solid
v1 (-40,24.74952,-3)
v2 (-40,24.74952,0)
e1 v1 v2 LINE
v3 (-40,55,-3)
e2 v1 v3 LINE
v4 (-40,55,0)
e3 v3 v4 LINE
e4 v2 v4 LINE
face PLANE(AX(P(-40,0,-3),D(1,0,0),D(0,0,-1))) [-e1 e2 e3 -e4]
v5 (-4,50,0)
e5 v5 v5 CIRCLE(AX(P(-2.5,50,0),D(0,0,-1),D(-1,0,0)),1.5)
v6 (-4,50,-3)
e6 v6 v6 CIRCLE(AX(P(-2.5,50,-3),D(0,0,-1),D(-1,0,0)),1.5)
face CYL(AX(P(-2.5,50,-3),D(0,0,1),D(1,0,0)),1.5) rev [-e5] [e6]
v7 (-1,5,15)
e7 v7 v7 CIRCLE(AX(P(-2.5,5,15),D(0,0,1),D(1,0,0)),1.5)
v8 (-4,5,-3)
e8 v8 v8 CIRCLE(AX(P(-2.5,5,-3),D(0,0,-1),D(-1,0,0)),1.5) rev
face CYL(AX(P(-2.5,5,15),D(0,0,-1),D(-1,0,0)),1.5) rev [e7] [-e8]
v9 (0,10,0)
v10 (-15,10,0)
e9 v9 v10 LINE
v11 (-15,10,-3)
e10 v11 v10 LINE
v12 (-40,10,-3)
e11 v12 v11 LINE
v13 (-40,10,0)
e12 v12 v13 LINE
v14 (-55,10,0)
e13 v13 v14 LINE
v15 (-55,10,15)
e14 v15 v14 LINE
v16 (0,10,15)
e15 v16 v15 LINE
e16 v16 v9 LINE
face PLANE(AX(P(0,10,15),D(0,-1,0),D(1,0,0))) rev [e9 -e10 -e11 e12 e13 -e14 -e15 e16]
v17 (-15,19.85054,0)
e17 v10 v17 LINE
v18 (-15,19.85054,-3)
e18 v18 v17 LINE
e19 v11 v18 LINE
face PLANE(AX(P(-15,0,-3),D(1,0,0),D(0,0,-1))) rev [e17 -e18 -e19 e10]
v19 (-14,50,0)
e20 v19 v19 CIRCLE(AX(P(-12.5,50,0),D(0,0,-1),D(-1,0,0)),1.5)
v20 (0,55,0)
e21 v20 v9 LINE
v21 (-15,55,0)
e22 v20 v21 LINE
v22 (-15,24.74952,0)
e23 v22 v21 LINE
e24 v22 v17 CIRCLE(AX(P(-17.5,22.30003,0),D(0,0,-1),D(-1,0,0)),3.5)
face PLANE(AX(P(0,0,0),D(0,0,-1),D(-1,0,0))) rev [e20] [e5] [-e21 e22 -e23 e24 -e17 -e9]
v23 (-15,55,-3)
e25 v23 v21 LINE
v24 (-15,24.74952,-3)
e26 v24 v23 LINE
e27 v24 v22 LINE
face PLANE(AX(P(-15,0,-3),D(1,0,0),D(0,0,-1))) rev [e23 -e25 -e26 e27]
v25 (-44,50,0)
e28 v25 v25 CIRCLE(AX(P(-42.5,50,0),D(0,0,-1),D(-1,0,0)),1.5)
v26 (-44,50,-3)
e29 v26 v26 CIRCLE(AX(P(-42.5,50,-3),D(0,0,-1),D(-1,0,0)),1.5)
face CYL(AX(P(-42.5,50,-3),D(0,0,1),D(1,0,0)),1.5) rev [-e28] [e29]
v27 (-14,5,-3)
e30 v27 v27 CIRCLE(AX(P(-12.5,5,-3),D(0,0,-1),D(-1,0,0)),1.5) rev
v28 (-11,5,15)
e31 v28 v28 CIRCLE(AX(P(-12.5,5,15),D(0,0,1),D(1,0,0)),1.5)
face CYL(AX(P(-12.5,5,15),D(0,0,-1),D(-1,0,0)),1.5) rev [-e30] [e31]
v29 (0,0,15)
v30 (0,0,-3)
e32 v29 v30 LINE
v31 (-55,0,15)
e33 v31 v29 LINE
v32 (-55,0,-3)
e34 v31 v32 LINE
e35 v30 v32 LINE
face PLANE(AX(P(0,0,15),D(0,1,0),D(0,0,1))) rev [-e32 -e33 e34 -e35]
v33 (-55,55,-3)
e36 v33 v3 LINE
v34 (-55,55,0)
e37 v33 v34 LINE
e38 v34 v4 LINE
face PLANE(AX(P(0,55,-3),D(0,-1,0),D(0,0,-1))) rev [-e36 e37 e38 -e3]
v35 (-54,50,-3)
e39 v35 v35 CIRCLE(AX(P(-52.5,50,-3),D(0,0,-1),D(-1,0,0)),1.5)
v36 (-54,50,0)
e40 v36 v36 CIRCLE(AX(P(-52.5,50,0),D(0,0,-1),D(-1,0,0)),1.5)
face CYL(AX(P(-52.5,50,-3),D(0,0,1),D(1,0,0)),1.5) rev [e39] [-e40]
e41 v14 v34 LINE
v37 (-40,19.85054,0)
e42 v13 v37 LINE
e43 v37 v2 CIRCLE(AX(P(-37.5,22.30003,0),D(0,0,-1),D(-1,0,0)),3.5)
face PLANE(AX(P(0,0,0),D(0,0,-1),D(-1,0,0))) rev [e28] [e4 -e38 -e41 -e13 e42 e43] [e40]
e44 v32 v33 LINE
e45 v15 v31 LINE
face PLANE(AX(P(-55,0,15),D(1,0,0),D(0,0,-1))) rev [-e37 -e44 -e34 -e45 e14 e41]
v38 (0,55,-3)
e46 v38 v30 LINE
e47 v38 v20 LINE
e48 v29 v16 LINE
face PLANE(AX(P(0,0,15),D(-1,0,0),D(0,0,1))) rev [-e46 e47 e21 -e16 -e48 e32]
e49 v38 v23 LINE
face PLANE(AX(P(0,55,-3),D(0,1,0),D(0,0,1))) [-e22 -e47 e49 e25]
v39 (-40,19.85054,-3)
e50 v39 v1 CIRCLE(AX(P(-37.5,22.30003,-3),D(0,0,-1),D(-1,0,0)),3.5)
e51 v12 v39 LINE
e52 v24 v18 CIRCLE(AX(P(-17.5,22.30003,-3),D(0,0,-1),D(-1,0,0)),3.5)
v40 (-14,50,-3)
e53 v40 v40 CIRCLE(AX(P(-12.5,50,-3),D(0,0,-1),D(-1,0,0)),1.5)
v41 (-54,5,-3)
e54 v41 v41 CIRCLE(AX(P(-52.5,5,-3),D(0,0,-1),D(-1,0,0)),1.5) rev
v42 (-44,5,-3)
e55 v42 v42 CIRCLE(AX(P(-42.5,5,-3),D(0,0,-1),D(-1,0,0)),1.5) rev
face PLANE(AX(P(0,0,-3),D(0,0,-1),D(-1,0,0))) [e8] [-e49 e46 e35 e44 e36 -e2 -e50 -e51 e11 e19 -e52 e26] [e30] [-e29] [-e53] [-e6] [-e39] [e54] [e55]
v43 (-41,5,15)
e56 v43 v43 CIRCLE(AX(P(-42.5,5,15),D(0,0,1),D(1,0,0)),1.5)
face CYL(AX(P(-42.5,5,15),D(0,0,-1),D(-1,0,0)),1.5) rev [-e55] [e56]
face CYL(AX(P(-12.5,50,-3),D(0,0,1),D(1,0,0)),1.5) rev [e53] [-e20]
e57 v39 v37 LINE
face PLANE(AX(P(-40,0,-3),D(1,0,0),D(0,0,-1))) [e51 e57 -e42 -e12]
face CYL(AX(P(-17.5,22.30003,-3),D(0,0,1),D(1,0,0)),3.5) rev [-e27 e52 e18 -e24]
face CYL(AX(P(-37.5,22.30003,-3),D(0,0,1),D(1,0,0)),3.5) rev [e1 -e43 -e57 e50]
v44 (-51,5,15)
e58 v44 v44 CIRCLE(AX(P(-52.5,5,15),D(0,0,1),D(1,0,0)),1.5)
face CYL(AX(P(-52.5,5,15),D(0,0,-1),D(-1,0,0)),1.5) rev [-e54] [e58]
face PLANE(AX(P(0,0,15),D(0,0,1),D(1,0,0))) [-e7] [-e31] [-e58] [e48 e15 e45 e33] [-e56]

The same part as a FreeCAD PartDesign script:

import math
import FreeCAD as App
import Part
import Sketcher
from FreeCAD import Vector
Q = App.Units.Quantity

doc = App.newDocument("Part")
body = doc.addObject("PartDesign::Body", "Body")

# Sketch on XY plane
sketch1 = doc.addObject("Sketcher::SketchObject", "Sketch")
body.addObject(sketch1)
sketch1.AttachmentSupport = (doc.XY_Plane, [""])
sketch1.MapMode = "FlatFace"
sketch1.addGeometry([
    Part.LineSegment(Vector(-55, 10, 0), Vector(-55, 0, 0)),  # 0
    Part.LineSegment(Vector(-55, 0, 0), Vector(0, 0, 0)),  # 1
    Part.LineSegment(Vector(0, 0, 0), Vector(0, 10, 0)),  # 2
    Part.LineSegment(Vector(0, 10, 0), Vector(-55, 10, 0)),  # 3
    Part.Circle(Vector(-52.5, 5, 0), Vector(0, 0, 1), 1.5),  # 4
    Part.Circle(Vector(-42.5, 5, 0), Vector(0, 0, 1), 1.5),  # 5
    Part.Circle(Vector(-12.5, 5, 0), Vector(0, 0, 1), 1.5),  # 6
    Part.Circle(Vector(-2.5, 5, 0), Vector(0, 0, 1), 1.5),  # 7
], False)
sketch1.addConstraint([
    Sketcher.Constraint("Coincident", 0, 2, 1, 1),
    Sketcher.Constraint("Coincident", 1, 2, 2, 1),
    Sketcher.Constraint("Coincident", 2, 2, 3, 1),
    Sketcher.Constraint("Coincident", 3, 2, 0, 1),
    Sketcher.Constraint("Vertical", 0),
    Sketcher.Constraint("Horizontal", 1),
    Sketcher.Constraint("Vertical", 2),
    Sketcher.Constraint("Horizontal", 3),
    Sketcher.Constraint("Coincident", 1, 2, -1, 1),
    Sketcher.Constraint("Equal", 4, 5),
    Sketcher.Constraint("Equal", 5, 6),
    Sketcher.Constraint("Equal", 6, 7),
    Sketcher.Constraint("Horizontal", 4, 3, 5, 3),
    Sketcher.Constraint("Horizontal", 5, 3, 6, 3),
    Sketcher.Constraint("Horizontal", 6, 3, 7, 3),
    Sketcher.Constraint("Diameter", 4, Q("3 mm")),
    Sketcher.Constraint("DistanceX", 1, 1, 1, 2, Q("55 mm")),
    Sketcher.Constraint("DistanceY", 0, 2, 0, 1, Q("10 mm")),
    Sketcher.Constraint("DistanceY", -1, 1, 4, 3, Q("5 mm")),
    Sketcher.Constraint("DistanceX", 4, 3, 5, 3, Q("10 mm")),
    Sketcher.Constraint("DistanceX", 5, 3, 6, 3, Q("30 mm")),
    Sketcher.Constraint("DistanceX", 6, 3, 7, 3, Q("10 mm")),
    Sketcher.Constraint("DistanceX", 4, 3, -1, 1, Q("52.5 mm")),
])
pad1 = doc.addObject("PartDesign::Pad", "Pad")
body.addObject(pad1)
pad1.Profile = sketch1
pad1.Length = 15

# Sketch on XY plane
sketch2 = doc.addObject("Sketcher::SketchObject", "Sketch001")
body.addObject(sketch2)
sketch2.AttachmentSupport = (doc.XY_Plane, [""])
sketch2.MapMode = "FlatFace"
sketch2.AttachmentOffset = App.Placement(Vector(0, 0, -3), App.Rotation())
sketch2.addGeometry([
    Part.LineSegment(Vector(-55, 0, 0), Vector(-55, 55, 0)),  # 0
    Part.LineSegment(Vector(-55, 55, 0), Vector(-40, 55, 0)),  # 1
    Part.LineSegment(Vector(-40, 55, 0), Vector(-40, 24.7, 0)),  # 2
    Part.ArcOfCircle(Part.Circle(Vector(-37.5, 22.3, 0), Vector(0, 0, 1), 3.5), math.radians(136), math.radians(180)),  # 3
    Part.ArcOfCircle(Part.Circle(Vector(-37.5, 22.3, 0), Vector(0, 0, 1), 3.5), math.radians(180), math.radians(224)),  # 4
    Part.LineSegment(Vector(-40, 19.9, 0), Vector(-40, 10, 0)),  # 5
    Part.LineSegment(Vector(-40, 10, 0), Vector(-15, 10, 0)),  # 6
    Part.LineSegment(Vector(-15, 10, 0), Vector(-15, 19.9, 0)),  # 7
    Part.ArcOfCircle(Part.Circle(Vector(-17.5, 22.3, 0), Vector(0, 0, 1), 3.5), math.radians(-44), math.radians(44)),  # 8
    Part.LineSegment(Vector(-15, 24.7, 0), Vector(-15, 55, 0)),  # 9
    Part.LineSegment(Vector(-15, 55, 0), Vector(0, 55, 0)),  # 10
    Part.LineSegment(Vector(0, 55, 0), Vector(0, 0, 0)),  # 11
    Part.LineSegment(Vector(0, 0, 0), Vector(-55, 0, 0)),  # 12
    Part.Circle(Vector(-12.5, 5, 0), Vector(0, 0, 1), 1.5),  # 13
    Part.Circle(Vector(-2.5, 5, 0), Vector(0, 0, 1), 1.5),  # 14
    Part.Circle(Vector(-52.5, 5, 0), Vector(0, 0, 1), 1.5),  # 15
    Part.Circle(Vector(-42.5, 5, 0), Vector(0, 0, 1), 1.5),  # 16
    Part.Circle(Vector(-12.5, 50, 0), Vector(0, 0, 1), 1.5),  # 17
    Part.Circle(Vector(-2.5, 50, 0), Vector(0, 0, 1), 1.5),  # 18
    Part.Circle(Vector(-52.5, 50, 0), Vector(0, 0, 1), 1.5),  # 19
    Part.Circle(Vector(-42.5, 50, 0), Vector(0, 0, 1), 1.5),  # 20
], False)
sketch2.addConstraint([
    Sketcher.Constraint("Coincident", 0, 2, 1, 1),
    Sketcher.Constraint("Coincident", 1, 2, 2, 1),
    Sketcher.Constraint("Coincident", 2, 2, 3, 1),
    Sketcher.Constraint("Tangent", 3, 2, 4, 1),
    Sketcher.Constraint("Coincident", 4, 2, 5, 1),
    Sketcher.Constraint("Coincident", 5, 2, 6, 1),
    Sketcher.Constraint("Coincident", 6, 2, 7, 1),
    Sketcher.Constraint("Coincident", 7, 2, 8, 1),
    Sketcher.Constraint("Coincident", 8, 2, 9, 1),
    Sketcher.Constraint("Coincident", 9, 2, 10, 1),
    Sketcher.Constraint("Coincident", 10, 2, 11, 1),
    Sketcher.Constraint("Coincident", 11, 2, 12, 1),
    Sketcher.Constraint("Coincident", 12, 2, 0, 1),
    Sketcher.Constraint("Vertical", 0),
    Sketcher.Constraint("Horizontal", 1),
    Sketcher.Constraint("Vertical", 2),
    Sketcher.Constraint("Vertical", 5),
    Sketcher.Constraint("Horizontal", 6),
    Sketcher.Constraint("Vertical", 7),
    Sketcher.Constraint("Vertical", 9),
    Sketcher.Constraint("Horizontal", 10),
    Sketcher.Constraint("Vertical", 11),
    Sketcher.Constraint("Horizontal", 12),
    Sketcher.Constraint("Coincident", 11, 2, -1, 1),
    Sketcher.Constraint("Equal", 3, 4),
    Sketcher.Constraint("Equal", 4, 8),
    Sketcher.Constraint("Equal", 13, 14),
    Sketcher.Constraint("Equal", 14, 15),
    Sketcher.Constraint("Equal", 15, 16),
    Sketcher.Constraint("Equal", 16, 17),
    Sketcher.Constraint("Equal", 17, 18),
    Sketcher.Constraint("Equal", 18, 19),
    Sketcher.Constraint("Equal", 19, 20),
    Sketcher.Constraint("Horizontal", 4, 3, 8, 3),
    Sketcher.Constraint("Horizontal", 13, 3, 14, 3),
    Sketcher.Constraint("Horizontal", 14, 3, 15, 3),
    Sketcher.Constraint("Horizontal", 15, 3, 16, 3),
    Sketcher.Constraint("Horizontal", 17, 3, 18, 3),
    Sketcher.Constraint("Horizontal", 18, 3, 19, 3),
    Sketcher.Constraint("Horizontal", 19, 3, 20, 3),
    Sketcher.Constraint("Horizontal", 8, 3, 3, 2),
    Sketcher.Constraint("Horizontal", 4, 2, 7, 2),
    Sketcher.Constraint("Horizontal", 2, 2, 8, 2),
    Sketcher.Constraint("Horizontal", 1, 2, 9, 2),
    Sketcher.Constraint("Vertical", 13, 3, 17, 3),
    Sketcher.Constraint("Vertical", 14, 3, 18, 3),
    Sketcher.Constraint("Vertical", 15, 3, 19, 3),
    Sketcher.Constraint("Vertical", 16, 3, 20, 3),
    Sketcher.Constraint("Vertical", 2, 2, 4, 2),
    Sketcher.Constraint("Equal", 1, 10),
    Sketcher.Constraint("Equal", 12, 0),
    Sketcher.Constraint("Diameter", 13, Q("3 mm")),
    Sketcher.Constraint("Radius", 3, Q("3.5 mm")),
    Sketcher.Constraint("DistanceX", 1, 1, 1, 2, Q("15 mm")),
    Sketcher.Constraint("DistanceX", 6, 1, 6, 2, Q("25 mm")),
    Sketcher.Constraint("DistanceY", -1, 1, 13, 3, Q("5 mm")),
    Sketcher.Constraint("DistanceY", -1, 1, 17, 3, Q("50 mm")),
    Sketcher.Constraint("DistanceX", 3, 2, -1, 1, Q("41 mm")),
    Sketcher.Constraint("DistanceY", -1, 1, 5, 2, Q("10 mm")),
    Sketcher.Constraint("DistanceX", 8, 3, 13, 3, Q("5 mm")),
    Sketcher.Constraint("DistanceX", 13, 3, 14, 3, Q("10 mm")),
    Sketcher.Constraint("DistanceX", 15, 3, 4, 3, Q("15 mm")),
    Sketcher.Constraint("DistanceX", 15, 3, 16, 3, Q("10 mm")),
    Sketcher.Constraint("DistanceY", 2, 2, 2, 1, Q("30.25048 mm")),
])
pad2 = doc.addObject("PartDesign::Pad", "Pad001")
body.addObject(pad2)
pad2.Profile = sketch2
pad2.Length = 3

doc.recompute()
